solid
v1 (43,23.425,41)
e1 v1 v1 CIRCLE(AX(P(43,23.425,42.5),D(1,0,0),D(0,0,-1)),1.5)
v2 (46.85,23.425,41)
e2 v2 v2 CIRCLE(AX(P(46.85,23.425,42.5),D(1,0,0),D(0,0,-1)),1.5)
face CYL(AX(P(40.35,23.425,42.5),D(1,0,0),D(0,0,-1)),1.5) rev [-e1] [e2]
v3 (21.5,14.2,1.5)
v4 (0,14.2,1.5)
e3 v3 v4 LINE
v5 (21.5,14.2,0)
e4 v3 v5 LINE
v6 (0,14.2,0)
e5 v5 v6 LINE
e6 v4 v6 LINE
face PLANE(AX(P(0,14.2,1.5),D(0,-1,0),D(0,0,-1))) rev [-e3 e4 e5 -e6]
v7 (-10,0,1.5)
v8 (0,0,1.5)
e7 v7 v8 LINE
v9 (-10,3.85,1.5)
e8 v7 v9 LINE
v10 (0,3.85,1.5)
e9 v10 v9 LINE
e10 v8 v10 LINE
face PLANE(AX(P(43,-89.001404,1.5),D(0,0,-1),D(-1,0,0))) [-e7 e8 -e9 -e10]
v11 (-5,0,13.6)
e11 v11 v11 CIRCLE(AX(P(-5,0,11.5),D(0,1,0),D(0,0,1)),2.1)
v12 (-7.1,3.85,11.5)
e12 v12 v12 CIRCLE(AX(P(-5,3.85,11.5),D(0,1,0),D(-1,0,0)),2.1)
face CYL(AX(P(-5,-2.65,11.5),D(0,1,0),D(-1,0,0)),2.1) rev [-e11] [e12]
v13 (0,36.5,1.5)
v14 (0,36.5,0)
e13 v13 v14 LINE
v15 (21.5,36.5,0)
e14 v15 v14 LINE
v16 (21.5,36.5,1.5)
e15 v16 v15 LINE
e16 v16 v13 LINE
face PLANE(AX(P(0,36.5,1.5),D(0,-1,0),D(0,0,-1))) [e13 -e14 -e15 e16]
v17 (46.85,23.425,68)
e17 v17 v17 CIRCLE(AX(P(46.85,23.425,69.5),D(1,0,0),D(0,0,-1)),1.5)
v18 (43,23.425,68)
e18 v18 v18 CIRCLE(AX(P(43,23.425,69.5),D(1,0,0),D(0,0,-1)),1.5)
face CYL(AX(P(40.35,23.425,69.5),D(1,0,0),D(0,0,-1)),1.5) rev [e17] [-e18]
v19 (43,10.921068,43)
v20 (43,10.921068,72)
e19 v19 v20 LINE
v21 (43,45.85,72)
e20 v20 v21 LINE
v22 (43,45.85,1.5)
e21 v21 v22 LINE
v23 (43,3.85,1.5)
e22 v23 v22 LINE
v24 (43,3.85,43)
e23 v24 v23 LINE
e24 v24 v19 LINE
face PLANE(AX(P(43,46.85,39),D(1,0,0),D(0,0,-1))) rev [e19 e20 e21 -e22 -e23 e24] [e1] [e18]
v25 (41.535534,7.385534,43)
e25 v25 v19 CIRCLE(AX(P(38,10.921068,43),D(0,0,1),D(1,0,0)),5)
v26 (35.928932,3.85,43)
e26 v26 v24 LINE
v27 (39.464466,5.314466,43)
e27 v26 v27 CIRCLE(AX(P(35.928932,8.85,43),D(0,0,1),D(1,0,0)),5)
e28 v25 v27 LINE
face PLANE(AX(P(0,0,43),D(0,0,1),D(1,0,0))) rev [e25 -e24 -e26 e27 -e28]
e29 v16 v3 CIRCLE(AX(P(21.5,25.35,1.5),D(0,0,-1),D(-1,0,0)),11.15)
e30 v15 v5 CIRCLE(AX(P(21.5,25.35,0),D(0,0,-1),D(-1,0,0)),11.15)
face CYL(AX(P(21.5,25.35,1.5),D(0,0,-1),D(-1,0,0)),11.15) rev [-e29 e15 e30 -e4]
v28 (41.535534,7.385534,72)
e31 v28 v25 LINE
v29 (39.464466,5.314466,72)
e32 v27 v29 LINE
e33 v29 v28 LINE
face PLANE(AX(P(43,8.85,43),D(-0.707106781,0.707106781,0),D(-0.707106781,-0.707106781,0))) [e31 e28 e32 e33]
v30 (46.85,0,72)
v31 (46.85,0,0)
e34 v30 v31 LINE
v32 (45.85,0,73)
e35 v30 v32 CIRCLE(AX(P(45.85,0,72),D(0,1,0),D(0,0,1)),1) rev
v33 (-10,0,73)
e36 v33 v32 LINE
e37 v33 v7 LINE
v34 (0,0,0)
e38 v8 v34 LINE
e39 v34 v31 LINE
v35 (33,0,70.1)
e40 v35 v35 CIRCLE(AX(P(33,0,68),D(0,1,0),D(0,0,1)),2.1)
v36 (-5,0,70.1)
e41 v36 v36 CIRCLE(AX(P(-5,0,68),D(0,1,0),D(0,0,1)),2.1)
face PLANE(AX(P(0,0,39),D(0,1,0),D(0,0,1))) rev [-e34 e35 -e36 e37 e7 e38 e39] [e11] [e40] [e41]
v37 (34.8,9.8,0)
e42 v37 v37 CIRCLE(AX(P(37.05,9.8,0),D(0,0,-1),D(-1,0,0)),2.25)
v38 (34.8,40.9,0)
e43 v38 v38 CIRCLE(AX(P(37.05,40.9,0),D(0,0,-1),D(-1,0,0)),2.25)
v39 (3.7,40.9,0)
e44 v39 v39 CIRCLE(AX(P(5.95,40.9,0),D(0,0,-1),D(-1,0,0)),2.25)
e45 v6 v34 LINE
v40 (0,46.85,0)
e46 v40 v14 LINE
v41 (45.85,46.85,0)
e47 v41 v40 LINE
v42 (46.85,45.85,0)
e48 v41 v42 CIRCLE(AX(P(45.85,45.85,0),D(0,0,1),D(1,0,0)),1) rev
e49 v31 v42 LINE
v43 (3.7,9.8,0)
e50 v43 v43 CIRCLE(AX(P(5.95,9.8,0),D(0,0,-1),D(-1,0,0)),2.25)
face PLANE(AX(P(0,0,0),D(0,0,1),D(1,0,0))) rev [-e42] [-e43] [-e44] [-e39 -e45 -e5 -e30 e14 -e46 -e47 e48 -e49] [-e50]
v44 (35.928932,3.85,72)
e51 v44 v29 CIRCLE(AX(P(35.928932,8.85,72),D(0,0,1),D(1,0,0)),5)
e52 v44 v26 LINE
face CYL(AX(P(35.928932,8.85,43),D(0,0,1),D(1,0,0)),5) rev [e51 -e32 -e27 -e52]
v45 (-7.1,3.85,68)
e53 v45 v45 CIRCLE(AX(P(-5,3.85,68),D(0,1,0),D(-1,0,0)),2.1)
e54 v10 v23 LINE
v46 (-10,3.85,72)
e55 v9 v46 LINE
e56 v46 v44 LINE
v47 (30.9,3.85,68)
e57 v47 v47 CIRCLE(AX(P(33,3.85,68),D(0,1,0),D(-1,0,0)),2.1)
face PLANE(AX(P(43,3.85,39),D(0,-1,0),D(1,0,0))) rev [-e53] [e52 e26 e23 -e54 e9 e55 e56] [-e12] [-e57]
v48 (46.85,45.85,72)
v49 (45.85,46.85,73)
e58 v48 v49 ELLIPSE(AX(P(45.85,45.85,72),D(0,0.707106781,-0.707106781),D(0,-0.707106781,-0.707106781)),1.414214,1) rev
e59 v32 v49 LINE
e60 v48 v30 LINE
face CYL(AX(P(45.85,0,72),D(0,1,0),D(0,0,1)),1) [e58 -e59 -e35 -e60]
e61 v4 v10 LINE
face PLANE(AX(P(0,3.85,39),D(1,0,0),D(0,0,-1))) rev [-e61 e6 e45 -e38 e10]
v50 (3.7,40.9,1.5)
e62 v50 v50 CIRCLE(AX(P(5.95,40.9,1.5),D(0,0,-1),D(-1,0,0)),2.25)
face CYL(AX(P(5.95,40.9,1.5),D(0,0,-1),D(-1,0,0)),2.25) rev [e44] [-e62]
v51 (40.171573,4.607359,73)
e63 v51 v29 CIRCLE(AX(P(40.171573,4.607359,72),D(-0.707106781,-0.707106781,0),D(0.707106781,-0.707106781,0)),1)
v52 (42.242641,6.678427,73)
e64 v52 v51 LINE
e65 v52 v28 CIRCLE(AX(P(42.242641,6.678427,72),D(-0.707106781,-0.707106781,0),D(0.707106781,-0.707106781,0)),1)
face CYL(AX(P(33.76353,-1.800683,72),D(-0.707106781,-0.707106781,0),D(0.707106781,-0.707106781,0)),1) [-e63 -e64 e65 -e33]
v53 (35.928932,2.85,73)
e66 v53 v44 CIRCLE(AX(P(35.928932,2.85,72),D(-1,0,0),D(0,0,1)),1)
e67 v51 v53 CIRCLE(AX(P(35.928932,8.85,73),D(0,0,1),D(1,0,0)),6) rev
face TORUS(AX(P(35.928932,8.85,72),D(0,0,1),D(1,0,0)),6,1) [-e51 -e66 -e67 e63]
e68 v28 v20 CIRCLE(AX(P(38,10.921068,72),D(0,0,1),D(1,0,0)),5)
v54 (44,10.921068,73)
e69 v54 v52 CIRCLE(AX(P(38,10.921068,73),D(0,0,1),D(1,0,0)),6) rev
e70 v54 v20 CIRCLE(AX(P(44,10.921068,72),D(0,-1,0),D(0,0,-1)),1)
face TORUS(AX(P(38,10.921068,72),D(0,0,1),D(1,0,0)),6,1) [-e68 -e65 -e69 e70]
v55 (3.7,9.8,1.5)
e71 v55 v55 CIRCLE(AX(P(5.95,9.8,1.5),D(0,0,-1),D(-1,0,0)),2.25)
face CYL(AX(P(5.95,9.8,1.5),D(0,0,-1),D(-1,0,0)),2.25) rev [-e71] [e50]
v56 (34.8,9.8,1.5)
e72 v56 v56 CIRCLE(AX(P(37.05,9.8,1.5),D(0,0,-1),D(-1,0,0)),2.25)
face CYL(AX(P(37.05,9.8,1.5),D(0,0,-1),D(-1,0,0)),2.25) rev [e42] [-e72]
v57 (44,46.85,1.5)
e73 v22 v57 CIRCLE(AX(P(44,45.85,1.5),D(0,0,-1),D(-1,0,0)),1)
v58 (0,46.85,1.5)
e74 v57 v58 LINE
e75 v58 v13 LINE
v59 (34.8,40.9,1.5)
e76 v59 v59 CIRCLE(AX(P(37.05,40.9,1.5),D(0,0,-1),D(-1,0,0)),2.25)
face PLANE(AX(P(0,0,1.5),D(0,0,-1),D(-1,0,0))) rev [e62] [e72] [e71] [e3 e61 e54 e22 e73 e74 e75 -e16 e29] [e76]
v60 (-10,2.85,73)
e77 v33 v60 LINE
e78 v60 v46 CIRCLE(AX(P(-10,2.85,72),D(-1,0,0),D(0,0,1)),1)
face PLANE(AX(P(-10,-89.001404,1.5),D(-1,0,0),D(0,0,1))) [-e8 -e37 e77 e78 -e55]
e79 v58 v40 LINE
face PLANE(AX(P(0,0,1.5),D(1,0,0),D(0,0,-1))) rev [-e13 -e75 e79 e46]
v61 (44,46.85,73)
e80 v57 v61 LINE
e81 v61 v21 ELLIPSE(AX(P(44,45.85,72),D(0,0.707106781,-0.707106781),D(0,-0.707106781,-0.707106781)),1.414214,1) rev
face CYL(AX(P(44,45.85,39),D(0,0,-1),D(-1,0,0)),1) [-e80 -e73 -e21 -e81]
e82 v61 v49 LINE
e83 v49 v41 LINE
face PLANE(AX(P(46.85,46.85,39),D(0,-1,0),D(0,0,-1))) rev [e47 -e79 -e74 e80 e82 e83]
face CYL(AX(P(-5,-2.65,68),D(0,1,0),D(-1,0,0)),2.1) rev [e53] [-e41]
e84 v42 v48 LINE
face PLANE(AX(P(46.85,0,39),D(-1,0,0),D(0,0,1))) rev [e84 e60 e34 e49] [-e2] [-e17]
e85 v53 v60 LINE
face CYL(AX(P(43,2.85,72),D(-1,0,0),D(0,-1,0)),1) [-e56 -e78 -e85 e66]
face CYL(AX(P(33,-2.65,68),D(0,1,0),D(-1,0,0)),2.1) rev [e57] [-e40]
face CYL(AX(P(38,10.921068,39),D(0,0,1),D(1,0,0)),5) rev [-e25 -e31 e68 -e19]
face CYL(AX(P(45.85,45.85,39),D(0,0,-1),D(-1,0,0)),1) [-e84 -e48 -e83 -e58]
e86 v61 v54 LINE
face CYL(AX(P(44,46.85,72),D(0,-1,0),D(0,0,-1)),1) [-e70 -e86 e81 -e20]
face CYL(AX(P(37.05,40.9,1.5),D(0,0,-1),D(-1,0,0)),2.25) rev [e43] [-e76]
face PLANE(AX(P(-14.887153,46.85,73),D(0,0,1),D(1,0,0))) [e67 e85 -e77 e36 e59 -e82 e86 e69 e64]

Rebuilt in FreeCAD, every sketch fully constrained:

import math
import FreeCAD as App
import Part
import Sketcher
Q = App.Units.Quantity


def edges_at(feature, points):
    """Names of the edges that pass closest to the given points."""
    edges = feature.Shape.Edges
    near = lambda p: min(range(len(edges)), key=lambda i: edges[i].distToShape(Part.Vertex(*p))[0])
    return sorted({f"Edge{near(p) + 1}" for p in points})


def add_polygon(sketch, points):
    """Adds a closed chain of lines whose ends are joined by coincident constraints."""
    first, n = sketch.GeometryCount, len(points)
    for a, b in zip(points, points[1:] + points[:1]):
        sketch.addGeometry(Part.LineSegment(App.Vector(*a, 0), App.Vector(*b, 0)), False)
    for i in range(n):
        sketch.addConstraint(Sketcher.Constraint("Coincident", first + i, 2, first + (i + 1) % n, 1))

doc = App.newDocument("Part")
body = doc.addObject("PartDesign::Body", "Body")

# Sketch on XY plane
sketch1 = body.newObject("Sketcher::SketchObject", "Sketch")
sketch1.AttachmentSupport = (doc.getObject("XY_Plane"), [""])
sketch1.MapMode = "FlatFace"
add_polygon(sketch1, [(0, 0), (46.85, 0), (46.85, 46.85), (43, 46.85), (43, 3.85), (0, 3.85)])  # lines 0-5
sketch1.addConstraint([
    Sketcher.Constraint("Horizontal", 0),
    Sketcher.Constraint("Vertical", 1),
    Sketcher.Constraint("Horizontal", 2),
    Sketcher.Constraint("Vertical", 3),
    Sketcher.Constraint("Horizontal", 4),
    Sketcher.Constraint("Vertical", 5),
    Sketcher.Constraint("Coincident", 5, 2, -1, 1),
    Sketcher.Constraint("Equal", 0, 1),
    Sketcher.Constraint("Equal", 4, 3),
    Sketcher.Constraint("DistanceX", 4, 2, 4, 1, Q("43 mm")),
    Sketcher.Constraint("DistanceX", 0, 1, 0, 2, Q("46.85 mm")),
])
pad1 = body.newObject("PartDesign::Pad", "Pad")
pad1.Profile = sketch1
pad1.Length = 39

# Sketch on XY plane
sketch2 = body.newObject("Sketcher::SketchObject", "Sketch001")
sketch2.AttachmentSupport = (doc.getObject("XY_Plane"), [""])
sketch2.MapMode = "FlatFace"
sketch2.addGeometry([
    Part.LineSegment(App.Vector(0, 46.85, 0), App.Vector(43, 46.85, 0)),  # 0
    Part.LineSegment(App.Vector(43, 46.85, 0), App.Vector(43, 3.85, 0)),  # 1
    Part.LineSegment(App.Vector(43, 3.85, 0), App.Vector(0, 3.85, 0)),  # 2
    Part.LineSegment(App.Vector(0, 3.85, 0), App.Vector(0, 14.2, 0)),  # 3
    Part.LineSegment(App.Vector(0, 14.2, 0), App.Vector(21.5, 14.2, 0)),  # 4
    Part.ArcOfCircle(Part.Circle(App.Vector(21.5, 25.35, 0), App.Vector(0, 0, 1), 11.15), math.radians(-90), math.radians(90)),  # 5
    Part.LineSegment(App.Vector(21.5, 36.5, 0), App.Vector(0, 36.5, 0)),  # 6
    Part.LineSegment(App.Vector(0, 36.5, 0), App.Vector(0, 46.85, 0)),  # 7
    Part.Circle(App.Vector(37.05, 9.8, 0), App.Vector(0, 0, 1), 2.25),  # 8
    Part.Circle(App.Vector(5.95, 9.8, 0), App.Vector(0, 0, 1), 2.25),  # 9
    Part.Circle(App.Vector(37.05, 40.9, 0), App.Vector(0, 0, 1), 2.25),  # 10
    Part.Circle(App.Vector(5.95, 40.9, 0), App.Vector(0, 0, 1), 2.25),  # 11
], False)
sketch2.addConstraint([
    Sketcher.Constraint("Coincident", 0, 2, 1, 1),
    Sketcher.Constraint("Coincident", 1, 2, 2, 1),
    Sketcher.Constraint("Coincident", 2, 2, 3, 1),
    Sketcher.Constraint("Coincident", 3, 2, 4, 1),
    Sketcher.Constraint("Tangent", 4, 2, 5, 1),
    Sketcher.Constraint("Tangent", 5, 2, 6, 1),
    Sketcher.Constraint("Coincident", 6, 2, 7, 1),
    Sketcher.Constraint("Coincident", 7, 2, 0, 1),
    Sketcher.Constraint("Horizontal", 0),
    Sketcher.Constraint("Vertical", 1),
    Sketcher.Constraint("Horizontal", 2),
    Sketcher.Constraint("Vertical", 3),
    Sketcher.Constraint("Horizontal", 4),
    Sketcher.Constraint("Horizontal", 6),
    Sketcher.Constraint("Vertical", 7),
    Sketcher.Constraint("Equal", 8, 9),
    Sketcher.Constraint("Equal", 9, 10),
    Sketcher.Constraint("Equal", 10, 11),
    Sketcher.Constraint("PointOnObject", 2, 2, -2),
    Sketcher.Constraint("PointOnObject", 6, 2, -2),
    Sketcher.Constraint("Horizontal", 8, 3, 9, 3),
    Sketcher.Constraint("Horizontal", 10, 3, 11, 3),
    Sketcher.Constraint("Vertical", 8, 3, 10, 3),
    Sketcher.Constraint("Vertical", 9, 3, 11, 3),
    Sketcher.Constraint("Equal", 2, 1),
    Sketcher.Constraint("Equal", 3, 7),
    Sketcher.Constraint("Diameter", 8, Q("4.5 mm")),
    Sketcher.Constraint("DistanceX", 0, 1, 0, 2, Q("43 mm")),
    Sketcher.Constraint("Radius", 5, Q("11.15 mm")),
    Sketcher.Constraint("DistanceX", 4, 1, 4, 2, Q("21.5 mm")),
    Sketcher.Constraint("DistanceY", -1, 1, 8, 3, Q("9.8 mm")),
    Sketcher.Constraint("DistanceY", -1, 1, 10, 3, Q("40.9 mm")),
    Sketcher.Constraint("DistanceY", -1, 1, 3, 2, Q("14.2 mm")),
    Sketcher.Constraint("DistanceX", 9, 3, 8, 3, Q("31.1 mm")),
    Sketcher.Constraint("DistanceX", -1, 1, 8, 3, Q("37.05 mm")),
])
pad2 = body.newObject("PartDesign::Pad", "Pad001")
pad2.Profile = sketch2
pad2.Length = 1.5

# Sketch on YZ plane
sketch3 = body.newObject("Sketcher::SketchObject", "Sketch002")
sketch3.AttachmentSupport = (doc.getObject("YZ_Plane"), [""])
sketch3.MapMode = "FlatFace"
sketch3.AttachmentOffset = App.Placement(App.Vector(0, 0, 46.85), App.Rotation())
add_polygon(sketch3, [(46.85, 73), (0, 73), (0, 39), (46.85, 39)])  # lines 0-3
sketch3.addConstraint([
    Sketcher.Constraint("Horizontal", 0),
    Sketcher.Constraint("Vertical", 1),
    Sketcher.Constraint("Horizontal", 2),
    Sketcher.Constraint("Vertical", 3),
    Sketcher.Constraint("PointOnObject", 0, 2, -2),
    Sketcher.Constraint("DistanceY", 1, 2, 1, 1, Q("34 mm")),
    Sketcher.Constraint("DistanceY", -1, 1, 0, 2, Q("73 mm")),
    Sketcher.Constraint("DistanceX", 0, 2, 0, 1, Q("46.85 mm")),
])
pad3 = body.newObject("PartDesign::Pad", "Pad002")
pad3.Profile = sketch3
pad3.Length = 3.85
pad3.Reversed = True

# Sketch on YZ plane
sketch4 = body.newObject("Sketcher::SketchObject", "Sketch003")
sketch4.AttachmentSupport = (doc.getObject("YZ_Plane"), [""])
sketch4.MapMode = "FlatFace"
sketch4.AttachmentOffset = App.Placement(App.Vector(0, 0, 46.85), App.Rotation())
sketch4.addGeometry([
    Part.Circle(App.Vector(23.425, 69.5, 0), App.Vector(0, 0, 1), 1.5),
    Part.Circle(App.Vector(23.425, 42.5, 0), App.Vector(0, 0, 1), 1.5),
], False)
sketch4.addConstraint([
    Sketcher.Constraint("Equal", 0, 1),
    Sketcher.Constraint("Vertical", 0, 3, 1, 3),
    Sketcher.Constraint("Diameter", 0, Q("3 mm")),
    Sketcher.Constraint("DistanceY", 1, 3, 0, 3, Q("27 mm")),
    Sketcher.Constraint("DistanceY", -1, 1, 0, 3, Q("69.5 mm")),
    Sketcher.Constraint("DistanceX", -1, 1, 0, 3, Q("23.425 mm")),
])
pocket1 = body.newObject("PartDesign::Pocket", "Pocket")
pocket1.Profile = sketch4
pocket1.Length = 6.5

# Sketch on XZ plane
sketch5 = body.newObject("Sketcher::SketchObject", "Sketch004")
sketch5.AttachmentSupport = (doc.getObject("XZ_Plane"), [""])
sketch5.MapMode = "FlatFace"
sketch5.AttachmentOffset = App.Placement(App.Vector(0, 0, -3.85), App.Rotation())
add_polygon(sketch5, [(-10, 1.5), (-10, 73), (43, 73), (43, 1.5)])  # lines 0-3
sketch5.addConstraint([
    Sketcher.Constraint("Vertical", 0),
    Sketcher.Constraint("Horizontal", 1),
    Sketcher.Constraint("Vertical", 2),
    Sketcher.Constraint("Horizontal", 3),
    Sketcher.Constraint("DistanceX", 1, 1, 1, 2, Q("53 mm")),
    Sketcher.Constraint("DistanceY", 0, 1, 0, 2, Q("71.5 mm")),
    Sketcher.Constraint("DistanceX", 0, 2, -1, 1, Q("10 mm")),
    Sketcher.Constraint("DistanceY", -1, 1, 0, 2, Q("73 mm")),
])
pad4 = body.newObject("PartDesign::Pad", "Pad003")
pad4.Profile = sketch5
pad4.Length = 3.85

# Sketch on XZ plane
sketch6 = body.newObject("Sketcher::SketchObject", "Sketch005")
sketch6.AttachmentSupport = (doc.getObject("XZ_Plane"), [""])
sketch6.MapMode = "FlatFace"
sketch6.AttachmentOffset = App.Placement(App.Vector(0, 0, -3.85), App.Rotation())
sketch6.addGeometry([
    Part.Circle(App.Vector(-5, 68, 0), App.Vector(0, 0, 1), 2.1),
    Part.Circle(App.Vector(33, 68, 0), App.Vector(0, 0, 1), 2.1),
    Part.Circle(App.Vector(-5, 11.5, 0), App.Vector(0, 0, 1), 2.1),
], False)
sketch6.addConstraint([
    Sketcher.Constraint("Equal", 0, 1),
    Sketcher.Constraint("Equal", 1, 2),
    Sketcher.Constraint("Horizontal", 0, 3, 1, 3),
    Sketcher.Constraint("Vertical", 0, 3, 2, 3),
    Sketcher.Constraint("Diameter", 0, Q("4.2 mm")),
    Sketcher.Constraint("DistanceX", 0, 3, -1, 1, Q("5 mm")),
    Sketcher.Constraint("DistanceY", -1, 1, 0, 3, Q("68 mm")),
    Sketcher.Constraint("DistanceX", -1, 1, 1, 3, Q("33 mm")),
    Sketcher.Constraint("DistanceY", -1, 1, 2, 3, Q("11.5 mm")),
])
pocket2 = body.newObject("PartDesign::Pocket", "Pocket001")
pocket2.Profile = sketch6
pocket2.Length = 6.5
pocket2.Reversed = True

# Sketch on XY plane
sketch7 = body.newObject("Sketcher::SketchObject", "Sketch006")
sketch7.AttachmentSupport = (doc.getObject("XY_Plane"), [""])
sketch7.MapMode = "FlatFace"
sketch7.AttachmentOffset = App.Placement(App.Vector(0, 0, 73), App.Rotation())
add_polygon(sketch7, [(43, 3.85), (43, 8.85), (38, 3.85)])  # lines 0-2
sketch7.addConstraint([
    Sketcher.Constraint("Vertical", 0),
    Sketcher.Constraint("Horizontal", 2),
    Sketcher.Constraint("Equal", 2, 0),
    Sketcher.Constraint("DistanceX", 2, 1, 2, 2, Q("5 mm")),
    Sketcher.Constraint("DistanceX", -1, 1, 0, 2, Q("43 mm")),
    Sketcher.Constraint("DistanceY", -1, 1, 0, 2, Q("8.85 mm")),
])
pad5 = body.newObject("PartDesign::Pad", "Pad004")
pad5.Profile = sketch7
pad5.Length = 30
pad5.Reversed = True
doc.recompute()

fillet = body.newObject("PartDesign::Fillet", "Fillet")
fillet.Base = (pad5, edges_at(pad5, [(38, 3.85, 58), (43, 8.85, 58)]))
fillet.Radius = 5
doc.recompute()

fillet2 = body.newObject("PartDesign::Fillet", "Fillet001")
fillet2.Base = (fillet, edges_at(fillet, [
    (12.964, 3.85, 73),
    (43, 46.85, 37.25),
    (46.85, 46.85, 36.5),
    (40.5, 6.35, 73),
    (43, 28.886, 73),
    (37.842, 4.231, 73),
    (42.619, 9.008, 73),
    (46.85, 23.425, 73),
]))
fillet2.Radius = 1

doc.recompute()
